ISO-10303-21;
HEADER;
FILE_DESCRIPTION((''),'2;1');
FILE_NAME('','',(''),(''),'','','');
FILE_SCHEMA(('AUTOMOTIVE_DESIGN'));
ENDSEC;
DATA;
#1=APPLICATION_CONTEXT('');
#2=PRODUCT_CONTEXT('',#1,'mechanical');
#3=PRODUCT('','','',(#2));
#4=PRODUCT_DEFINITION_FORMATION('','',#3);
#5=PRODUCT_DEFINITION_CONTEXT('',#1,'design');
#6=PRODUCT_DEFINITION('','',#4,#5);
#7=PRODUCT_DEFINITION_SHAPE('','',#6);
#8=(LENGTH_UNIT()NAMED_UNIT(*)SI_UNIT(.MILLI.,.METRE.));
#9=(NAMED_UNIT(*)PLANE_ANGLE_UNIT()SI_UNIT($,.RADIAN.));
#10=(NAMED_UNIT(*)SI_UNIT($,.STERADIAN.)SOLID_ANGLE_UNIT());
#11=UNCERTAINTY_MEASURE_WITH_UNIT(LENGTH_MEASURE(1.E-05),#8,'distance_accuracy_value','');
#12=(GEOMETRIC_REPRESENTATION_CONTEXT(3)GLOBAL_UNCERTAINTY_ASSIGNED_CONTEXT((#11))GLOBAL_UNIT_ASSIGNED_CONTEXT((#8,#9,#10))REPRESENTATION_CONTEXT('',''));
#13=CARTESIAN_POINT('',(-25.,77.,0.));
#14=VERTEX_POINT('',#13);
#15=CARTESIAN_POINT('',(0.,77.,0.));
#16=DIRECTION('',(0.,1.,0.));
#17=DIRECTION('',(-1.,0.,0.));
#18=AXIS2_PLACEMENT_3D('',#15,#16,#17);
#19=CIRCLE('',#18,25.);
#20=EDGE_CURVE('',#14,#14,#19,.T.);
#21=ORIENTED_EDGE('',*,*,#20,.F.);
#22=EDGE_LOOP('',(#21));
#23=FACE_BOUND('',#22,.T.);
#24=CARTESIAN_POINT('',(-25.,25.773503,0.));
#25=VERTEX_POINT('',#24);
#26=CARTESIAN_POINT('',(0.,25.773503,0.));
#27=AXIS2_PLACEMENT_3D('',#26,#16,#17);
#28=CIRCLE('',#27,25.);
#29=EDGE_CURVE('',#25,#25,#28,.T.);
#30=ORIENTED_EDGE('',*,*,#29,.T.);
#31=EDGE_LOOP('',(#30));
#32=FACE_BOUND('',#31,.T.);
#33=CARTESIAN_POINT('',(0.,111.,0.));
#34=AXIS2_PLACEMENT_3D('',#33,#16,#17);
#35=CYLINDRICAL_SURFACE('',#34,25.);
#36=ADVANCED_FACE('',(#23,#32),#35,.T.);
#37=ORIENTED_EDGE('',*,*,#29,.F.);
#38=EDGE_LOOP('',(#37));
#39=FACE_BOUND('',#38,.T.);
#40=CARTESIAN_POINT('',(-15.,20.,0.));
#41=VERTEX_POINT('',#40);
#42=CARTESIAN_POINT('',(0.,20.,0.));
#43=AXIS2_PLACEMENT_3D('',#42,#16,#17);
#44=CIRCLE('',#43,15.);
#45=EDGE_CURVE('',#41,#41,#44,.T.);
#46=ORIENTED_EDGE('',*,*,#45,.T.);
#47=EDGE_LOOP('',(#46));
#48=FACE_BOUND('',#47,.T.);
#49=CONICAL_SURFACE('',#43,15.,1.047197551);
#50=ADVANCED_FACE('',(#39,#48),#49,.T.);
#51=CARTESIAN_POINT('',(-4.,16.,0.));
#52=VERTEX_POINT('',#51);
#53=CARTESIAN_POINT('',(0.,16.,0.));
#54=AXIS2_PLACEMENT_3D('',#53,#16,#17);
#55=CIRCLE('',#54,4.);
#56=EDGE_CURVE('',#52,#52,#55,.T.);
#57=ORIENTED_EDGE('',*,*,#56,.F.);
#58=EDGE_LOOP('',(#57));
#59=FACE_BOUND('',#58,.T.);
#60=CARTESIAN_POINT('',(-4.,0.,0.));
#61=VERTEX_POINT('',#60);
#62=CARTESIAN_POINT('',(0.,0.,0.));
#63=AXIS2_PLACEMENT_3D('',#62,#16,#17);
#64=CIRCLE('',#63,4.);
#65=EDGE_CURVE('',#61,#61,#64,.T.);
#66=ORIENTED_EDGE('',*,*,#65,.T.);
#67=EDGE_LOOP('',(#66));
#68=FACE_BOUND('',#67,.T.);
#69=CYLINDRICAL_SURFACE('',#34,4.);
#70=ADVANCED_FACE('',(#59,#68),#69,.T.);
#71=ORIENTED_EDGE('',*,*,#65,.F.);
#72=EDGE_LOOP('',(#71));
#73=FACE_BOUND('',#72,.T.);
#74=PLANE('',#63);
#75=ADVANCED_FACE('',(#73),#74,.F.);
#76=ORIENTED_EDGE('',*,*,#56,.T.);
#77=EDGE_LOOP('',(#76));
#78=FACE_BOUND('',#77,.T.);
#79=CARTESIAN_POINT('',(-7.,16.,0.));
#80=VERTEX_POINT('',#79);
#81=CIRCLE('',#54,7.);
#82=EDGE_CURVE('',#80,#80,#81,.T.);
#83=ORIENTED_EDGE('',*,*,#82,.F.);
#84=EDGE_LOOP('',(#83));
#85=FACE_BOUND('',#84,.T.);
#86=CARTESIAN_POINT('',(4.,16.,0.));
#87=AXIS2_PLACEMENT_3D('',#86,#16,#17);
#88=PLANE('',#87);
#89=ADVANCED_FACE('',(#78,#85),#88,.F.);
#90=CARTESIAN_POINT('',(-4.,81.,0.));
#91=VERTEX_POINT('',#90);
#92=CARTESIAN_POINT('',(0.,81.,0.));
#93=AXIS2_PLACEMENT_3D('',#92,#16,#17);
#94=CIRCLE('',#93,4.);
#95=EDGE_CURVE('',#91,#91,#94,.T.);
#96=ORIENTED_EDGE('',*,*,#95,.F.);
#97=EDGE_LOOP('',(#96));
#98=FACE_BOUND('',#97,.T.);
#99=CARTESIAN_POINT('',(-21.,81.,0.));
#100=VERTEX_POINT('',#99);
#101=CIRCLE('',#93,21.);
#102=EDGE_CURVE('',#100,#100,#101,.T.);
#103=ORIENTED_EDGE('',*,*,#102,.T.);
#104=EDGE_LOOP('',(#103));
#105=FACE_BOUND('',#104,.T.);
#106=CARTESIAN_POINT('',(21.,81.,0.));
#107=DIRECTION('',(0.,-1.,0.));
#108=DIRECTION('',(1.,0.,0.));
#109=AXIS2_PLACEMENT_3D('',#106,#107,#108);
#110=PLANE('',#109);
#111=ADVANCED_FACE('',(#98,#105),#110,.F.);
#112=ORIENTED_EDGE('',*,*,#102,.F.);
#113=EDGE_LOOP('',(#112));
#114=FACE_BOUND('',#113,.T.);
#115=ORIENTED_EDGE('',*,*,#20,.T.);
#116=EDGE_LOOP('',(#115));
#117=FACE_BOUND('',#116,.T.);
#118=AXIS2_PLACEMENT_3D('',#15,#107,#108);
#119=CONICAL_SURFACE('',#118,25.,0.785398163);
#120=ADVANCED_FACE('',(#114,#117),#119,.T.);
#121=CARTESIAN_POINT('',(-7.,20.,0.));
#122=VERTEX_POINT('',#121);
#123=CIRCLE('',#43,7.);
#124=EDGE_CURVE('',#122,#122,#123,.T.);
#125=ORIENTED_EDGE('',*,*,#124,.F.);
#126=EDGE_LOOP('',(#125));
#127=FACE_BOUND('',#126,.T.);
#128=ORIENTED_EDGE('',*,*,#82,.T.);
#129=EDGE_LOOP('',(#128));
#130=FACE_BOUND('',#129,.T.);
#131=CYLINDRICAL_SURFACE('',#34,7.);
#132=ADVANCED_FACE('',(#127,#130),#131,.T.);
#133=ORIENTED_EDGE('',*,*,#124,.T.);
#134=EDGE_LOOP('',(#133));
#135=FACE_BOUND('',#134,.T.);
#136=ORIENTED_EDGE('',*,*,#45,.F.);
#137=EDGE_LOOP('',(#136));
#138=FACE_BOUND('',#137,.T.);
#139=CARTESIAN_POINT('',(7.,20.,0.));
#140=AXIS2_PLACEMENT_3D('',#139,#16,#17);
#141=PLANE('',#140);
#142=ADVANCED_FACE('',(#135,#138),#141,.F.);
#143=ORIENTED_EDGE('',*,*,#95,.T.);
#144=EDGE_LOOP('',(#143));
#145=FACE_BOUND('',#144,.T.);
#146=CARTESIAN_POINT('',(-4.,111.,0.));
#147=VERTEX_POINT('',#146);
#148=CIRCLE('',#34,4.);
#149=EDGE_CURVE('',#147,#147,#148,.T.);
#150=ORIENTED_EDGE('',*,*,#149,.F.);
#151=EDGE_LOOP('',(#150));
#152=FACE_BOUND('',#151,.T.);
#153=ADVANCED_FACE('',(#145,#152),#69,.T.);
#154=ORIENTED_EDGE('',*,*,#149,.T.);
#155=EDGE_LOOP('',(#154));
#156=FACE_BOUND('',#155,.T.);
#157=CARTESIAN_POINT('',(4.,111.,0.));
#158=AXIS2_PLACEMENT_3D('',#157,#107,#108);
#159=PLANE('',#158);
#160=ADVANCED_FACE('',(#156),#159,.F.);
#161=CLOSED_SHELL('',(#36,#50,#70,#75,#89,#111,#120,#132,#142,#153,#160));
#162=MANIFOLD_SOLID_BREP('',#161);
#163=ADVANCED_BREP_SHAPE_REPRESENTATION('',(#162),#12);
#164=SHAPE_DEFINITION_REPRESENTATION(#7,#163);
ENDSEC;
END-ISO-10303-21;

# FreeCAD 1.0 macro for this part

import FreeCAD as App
import Part
import Sketcher
Q = App.Units.Quantity

doc = App.newDocument("Part")
params = doc.addObject("Spreadsheet::Sheet", "Params")
for row, (alias, value) in enumerate([
    ("sketch1_width", "4 mm"),
    ("sketch1_width2", "3 mm"),
    ("sketch1_width3", "8 mm"),
    ("sketch1_width4", "17 mm"),
    ("sketch1_height", "16 mm"),
    ("revolution_angle", "360 deg"),
], start=1):
    params.set(f"A{row}", alias)
    params.set(f"B{row}", "=" + value)
    params.setAlias(f"B{row}", alias)

body = doc.addObject("PartDesign::Body", "Body")

# Sketch on XY plane
sketch1 = body.newObject("Sketcher::SketchObject", "Sketch")
sketch1.AttachmentSupport = (doc.getObject("XY_Plane"), [""])
sketch1.MapMode = "FlatFace"
sketch1.addGeometry([
    Part.LineSegment(App.Vector(0, 0, 0), App.Vector(4, 0, 0)),  # 0
    Part.LineSegment(App.Vector(4, 0, 0), App.Vector(4, 16, 0)),  # 1
    Part.LineSegment(App.Vector(4, 16, 0), App.Vector(7, 16, 0)),  # 2
    Part.LineSegment(App.Vector(7, 16, 0), App.Vector(7, 20, 0)),  # 3
    Part.LineSegment(App.Vector(7, 20, 0), App.Vector(15, 20, 0)),  # 4
    Part.LineSegment(App.Vector(15, 20, 0), App.Vector(25, 25.773503, 0)),  # 5
    Part.LineSegment(App.Vector(25, 25.773503, 0), App.Vector(25, 77, 0)),  # 6
    Part.LineSegment(App.Vector(25, 77, 0), App.Vector(21, 81, 0)),  # 7
    Part.LineSegment(App.Vector(21, 81, 0), App.Vector(4, 81, 0)),  # 8
    Part.LineSegment(App.Vector(4, 81, 0), App.Vector(4, 111, 0)),  # 9
    Part.LineSegment(App.Vector(4, 111, 0), App.Vector(0, 111, 0)),  # 10
    Part.LineSegment(App.Vector(0, 111, 0), App.Vector(0, 0, 0)),  # 11
], False)
sketch1.addConstraint([
    Sketcher.Constraint("Coincident", 0, 2, 1, 1),
    Sketcher.Constraint("Coincident", 1, 2, 2, 1),
    Sketcher.Constraint("Coincident", 2, 2, 3, 1),
    Sketcher.Constraint("Coincident", 3, 2, 4, 1),
    Sketcher.Constraint("Coincident", 4, 2, 5, 1),
    Sketcher.Constraint("Coincident", 5, 2, 6, 1),
    Sketcher.Constraint("Coincident", 6, 2, 7, 1),
    Sketcher.Constraint("Coincident", 7, 2, 8, 1),
    Sketcher.Constraint("Coincident", 8, 2, 9, 1),
    Sketcher.Constraint("Coincident", 9, 2, 10, 1),
    Sketcher.Constraint("Coincident", 10, 2, 11, 1),
    Sketcher.Constraint("Coincident", 11, 2, 0, 1),
    Sketcher.Constraint("Horizontal", 0),
    Sketcher.Constraint("Vertical", 1),
    Sketcher.Constraint("Horizontal", 2),
    Sketcher.Constraint("Vertical", 3),
    Sketcher.Constraint("Horizontal", 4),
    Sketcher.Constraint("Vertical", 6),
    Sketcher.Constraint("Horizontal", 8),
    Sketcher.Constraint("Vertical", 9),
    Sketcher.Constraint("Horizontal", 10),
    Sketcher.Constraint("Vertical", 11),
    Sketcher.Constraint("Coincident", 11, 2, -1, 1),
    Sketcher.Constraint("Vertical", 1, 2, 8, 2),
    Sketcher.Constraint("Equal", 10, 3),
    Sketcher.Constraint("DistanceX", 0, 1, 0, 2, Q("4 mm")),
    Sketcher.Constraint("DistanceX", 2, 1, 2, 2, Q("3 mm")),
    Sketcher.Constraint("DistanceX", 4, 1, 4, 2, Q("8 mm")),
    Sketcher.Constraint("DistanceX", 8, 2, 8, 1, Q("17 mm")),
    Sketcher.Constraint("DistanceY", 1, 1, 1, 2, Q("16 mm")),
    Sketcher.Constraint("DistanceY", 9, 1, 9, 2, Q("30 mm")),
    Sketcher.Constraint("DistanceY", 11, 2, 11, 1, Q("111 mm")),
    Sketcher.Constraint("Angle", 5, Q("30 deg")),
    Sketcher.Constraint("Angle", 7, Q("135 deg")),
    Sketcher.Constraint("DistanceX", -1, 1, 5, 2, Q("25 mm")),
])
sketch1.setExpression("Constraints[25]", "Params.sketch1_width")
sketch1.setExpression("Constraints[26]", "Params.sketch1_width2")
sketch1.setExpression("Constraints[27]", "Params.sketch1_width3")
sketch1.setExpression("Constraints[28]", "Params.sketch1_width4")
sketch1.setExpression("Constraints[29]", "Params.sketch1_height")
revolution = body.newObject("PartDesign::Revolution", "Revolution")
revolution.Profile = sketch1
revolution.ReferenceAxis = (sketch1, ["V_Axis"])
revolution.setExpression("Angle", "Params.revolution_angle")

doc.recompute()
